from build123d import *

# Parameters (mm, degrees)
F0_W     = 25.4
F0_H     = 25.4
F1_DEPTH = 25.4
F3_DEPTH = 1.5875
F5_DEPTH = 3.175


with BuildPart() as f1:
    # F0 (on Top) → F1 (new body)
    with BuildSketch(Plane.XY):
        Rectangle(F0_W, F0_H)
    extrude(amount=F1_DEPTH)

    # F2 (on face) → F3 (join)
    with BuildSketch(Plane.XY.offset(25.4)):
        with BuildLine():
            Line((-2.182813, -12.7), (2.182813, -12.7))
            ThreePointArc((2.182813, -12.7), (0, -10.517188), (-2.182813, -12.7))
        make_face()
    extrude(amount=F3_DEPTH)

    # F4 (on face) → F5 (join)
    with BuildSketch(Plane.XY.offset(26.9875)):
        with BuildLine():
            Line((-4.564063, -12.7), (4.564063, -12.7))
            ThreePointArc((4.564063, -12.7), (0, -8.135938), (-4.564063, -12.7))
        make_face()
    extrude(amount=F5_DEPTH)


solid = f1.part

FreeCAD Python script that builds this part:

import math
import FreeCAD as App
import Part
import Sketcher
Q = App.Units.Quantity

doc = App.newDocument("Part")
body = doc.addObject("PartDesign::Body", "Body")

sketch1 = body.newObject("Sketcher::SketchObject", "Sketch")
sketch1.AttachmentSupport = (doc.getObject("XY_Plane"), [""])
sketch1.MapMode = "FlatFace"
sketch1.addGeometry(Part.LineSegment(App.Vector(-12.7, 12.7, 0), App.Vector(-12.7, -12.7, 0)), False)
sketch1.addGeometry(Part.LineSegment(App.Vector(-12.7, -12.7, 0), App.Vector(12.7, -12.7, 0)), False)
sketch1.addGeometry(Part.LineSegment(App.Vector(12.7, -12.7, 0), App.Vector(12.7, 12.7, 0)), False)
sketch1.addGeometry(Part.LineSegment(App.Vector(12.7, 12.7, 0), App.Vector(-12.7, 12.7, 0)), False)
sketch1.addConstraint(Sketcher.Constraint("Coincident", 0, 2, 1, 1))
sketch1.addConstraint(Sketcher.Constraint("Coincident", 1, 2, 2, 1))
sketch1.addConstraint(Sketcher.Constraint("Coincident", 2, 2, 3, 1))
sketch1.addConstraint(Sketcher.Constraint("Coincident", 3, 2, 0, 1))
sketch1.addConstraint(Sketcher.Constraint("Vertical", 0))
sketch1.addConstraint(Sketcher.Constraint("Horizontal", 1))
sketch1.addConstraint(Sketcher.Constraint("Vertical", 2))
sketch1.addConstraint(Sketcher.Constraint("Horizontal", 3))
sketch1.addConstraint(Sketcher.Constraint("Symmetric", 0, 2, 2, 2, -1, 1))
sketch1.addConstraint(Sketcher.Constraint("Equal", 3, 0))
sketch1.addConstraint(Sketcher.Constraint("DistanceX", 1, 1, 1, 2, Q("1 in")))
pad1 = body.newObject("PartDesign::Pad", "Pad")
pad1.Profile = sketch1
pad1.Length = Q("1 in")

sketch2 = body.newObject("Sketcher::SketchObject", "Sketch001")
sketch2.AttachmentSupport = (doc.getObject("XY_Plane"), [""])
sketch2.MapMode = "FlatFace"
sketch2.AttachmentOffset = App.Placement(App.Vector(0, 0, 1 * 25.4), App.Rotation())
sketch2.addGeometry(Part.LineSegment(App.Vector(-2.182813, -12.7, 0), App.Vector(2.182813, -12.7, 0)), False)
sketch2.addGeometry(Part.ArcOfCircle(Part.Circle(App.Vector(0, -12.700001, 0), App.Vector(0, 0, 1), 2.182813), math.radians(0.000026), math.radians(179.999974)), False)
sketch2.addConstraint(Sketcher.Constraint("Coincident", 0, 1, 1, 2))
sketch2.addConstraint(Sketcher.Constraint("Coincident", 1, 1, 0, 2))
sketch2.addConstraint(Sketcher.Constraint("Horizontal", 0))
sketch2.addConstraint(Sketcher.Constraint("PointOnObject", 1, 3, -2))
sketch2.addConstraint(Sketcher.Constraint("Horizontal", 1, 3, 0, 1))
sketch2.addConstraint(Sketcher.Constraint("DistanceY", 1, 3, -1, 1, Q("0.5 in")))
sketch2.addConstraint(Sketcher.Constraint("DistanceX", 0, 1, 0, 2, Q("0.171875 in")))
pad2 = body.newObject("PartDesign::Pad", "Pad001")
pad2.Profile = sketch2
pad2.Length = Q("0.0625 in")

sketch3 = body.newObject("Sketcher::SketchObject", "Sketch002")
sketch3.AttachmentSupport = (doc.getObject("XY_Plane"), [""])
sketch3.MapMode = "FlatFace"
sketch3.AttachmentOffset = App.Placement(App.Vector(0, 0, 1.0625 * 25.4), App.Rotation())
sketch3.addGeometry(Part.LineSegment(App.Vector(-4.564063, -12.7, 0), App.Vector(4.564063, -12.7, 0)), False)
sketch3.addGeometry(Part.ArcOfCircle(Part.Circle(App.Vector(0, -12.700001, 0), App.Vector(0, 0, 1), 4.564063), math.radians(0.000013), math.radians(179.999987)), False)
sketch3.addConstraint(Sketcher.Constraint("Coincident", 0, 1, 1, 2))
sketch3.addConstraint(Sketcher.Constraint("Coincident", 1, 1, 0, 2))
sketch3.addConstraint(Sketcher.Constraint("Horizontal", 0))
sketch3.addConstraint(Sketcher.Constraint("PointOnObject", 1, 3, -2))
sketch3.addConstraint(Sketcher.Constraint("Horizontal", 1, 3, 0, 1))
sketch3.addConstraint(Sketcher.Constraint("DistanceY", 1, 3, -1, 1, Q("0.5 in")))
sketch3.addConstraint(Sketcher.Constraint("DistanceX", 0, 1, 0, 2, Q("0.359375 in")))
pad3 = body.newObject("PartDesign::Pad", "Pad002")
pad3.Profile = sketch3
pad3.Length = Q("0.125 in")

doc.recompute()
